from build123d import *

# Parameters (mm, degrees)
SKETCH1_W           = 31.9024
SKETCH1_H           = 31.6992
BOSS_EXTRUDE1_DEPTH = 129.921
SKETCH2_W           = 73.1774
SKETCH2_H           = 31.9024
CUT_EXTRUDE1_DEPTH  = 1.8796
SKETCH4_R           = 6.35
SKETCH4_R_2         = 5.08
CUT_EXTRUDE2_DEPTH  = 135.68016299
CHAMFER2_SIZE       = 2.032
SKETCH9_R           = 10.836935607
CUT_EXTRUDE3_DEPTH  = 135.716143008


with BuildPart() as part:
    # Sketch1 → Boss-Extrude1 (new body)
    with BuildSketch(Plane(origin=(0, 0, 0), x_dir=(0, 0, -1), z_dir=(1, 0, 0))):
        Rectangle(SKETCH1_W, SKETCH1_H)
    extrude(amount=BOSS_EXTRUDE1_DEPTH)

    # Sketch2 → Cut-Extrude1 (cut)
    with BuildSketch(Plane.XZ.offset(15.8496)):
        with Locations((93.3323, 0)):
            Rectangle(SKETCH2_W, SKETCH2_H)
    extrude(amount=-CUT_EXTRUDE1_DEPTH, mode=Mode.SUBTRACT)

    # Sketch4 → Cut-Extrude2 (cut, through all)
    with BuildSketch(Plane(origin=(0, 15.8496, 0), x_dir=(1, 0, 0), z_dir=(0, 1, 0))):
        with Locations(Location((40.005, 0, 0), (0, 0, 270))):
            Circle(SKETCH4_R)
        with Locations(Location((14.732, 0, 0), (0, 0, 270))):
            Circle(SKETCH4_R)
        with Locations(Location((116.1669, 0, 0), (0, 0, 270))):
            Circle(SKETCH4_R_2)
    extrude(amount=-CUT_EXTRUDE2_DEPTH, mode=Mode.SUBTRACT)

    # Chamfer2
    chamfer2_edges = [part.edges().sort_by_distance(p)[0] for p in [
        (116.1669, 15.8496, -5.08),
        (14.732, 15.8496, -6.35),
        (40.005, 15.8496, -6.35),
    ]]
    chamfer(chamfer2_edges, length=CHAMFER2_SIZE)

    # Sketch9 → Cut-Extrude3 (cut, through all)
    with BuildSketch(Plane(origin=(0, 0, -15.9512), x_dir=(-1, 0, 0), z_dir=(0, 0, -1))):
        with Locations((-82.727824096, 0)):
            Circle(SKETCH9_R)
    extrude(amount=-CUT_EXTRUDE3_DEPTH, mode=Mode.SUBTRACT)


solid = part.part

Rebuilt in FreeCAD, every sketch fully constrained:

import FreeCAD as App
import Part
import Sketcher

V = App.Vector
Q = App.Units.Quantity


def edges_at(feature, points):
    """Names of the edges that pass closest to the given points."""
    edges = feature.Shape.Edges
    near = lambda p: min(range(len(edges)), key=lambda i: edges[i].distToShape(Part.Vertex(*p))[0])
    return sorted({f"Edge{near(p) + 1}" for p in points})

doc = App.newDocument("Part")
body = doc.addObject("PartDesign::Body", "Body")

# Sketch on YZ plane
sketch1 = body.newObject("Sketcher::SketchObject", "Sketch")
sketch1.AttachmentSupport = (doc.getObject("YZ_Plane"), [""])
sketch1.MapMode = "FlatFace"
sketch1.addGeometry([
    Part.LineSegment(V(16, 16, 0), V(-16, 16, 0)),
    Part.LineSegment(V(-16, 16, 0), V(-16, -16, 0)),
    Part.LineSegment(V(-16, -16, 0), V(16, -16, 0)),
    Part.LineSegment(V(16, -16, 0), V(16, 16, 0)),
], False)
sketch1.addConstraint([
    Sketcher.Constraint("Coincident", 0, 2, 1, 1),
    Sketcher.Constraint("Coincident", 1, 2, 2, 1),
    Sketcher.Constraint("Coincident", 2, 2, 3, 1),
    Sketcher.Constraint("Coincident", 3, 2, 0, 1),
    Sketcher.Constraint("Horizontal", 0),
    Sketcher.Constraint("Vertical", 1),
    Sketcher.Constraint("Horizontal", 2),
    Sketcher.Constraint("Vertical", 3),
    Sketcher.Constraint("Symmetric", 0, 2, 2, 2, -1, 1),
    Sketcher.Constraint("DistanceX", 0, 2, 0, 1, Q("1.248 in")),
    Sketcher.Constraint("DistanceY", 1, 2, 1, 1, Q("1.256 in")),
])
pad1 = body.newObject("PartDesign::Pad", "Pad")
pad1.Profile = sketch1
pad1.Length = Q("5.115 in")

# Sketch on XZ plane
sketch2 = body.newObject("Sketcher::SketchObject", "Sketch001")
sketch2.AttachmentSupport = (doc.getObject("XZ_Plane"), [""])
sketch2.MapMode = "FlatFace"
sketch2.AttachmentOffset = App.Placement(V(0, 0, 0.624 * 25.4), App.Rotation())
sketch2.addGeometry([
    Part.LineSegment(V(57, 16, 0), V(57, -16, 0)),
    Part.LineSegment(V(57, -16, 0), V(130, -16, 0)),
    Part.LineSegment(V(130, -16, 0), V(130, 16, 0)),
    Part.LineSegment(V(130, 16, 0), V(57, 16, 0)),
], False)
sketch2.addConstraint([
    Sketcher.Constraint("Coincident", 0, 2, 1, 1),
    Sketcher.Constraint("Coincident", 1, 2, 2, 1),
    Sketcher.Constraint("Coincident", 2, 2, 3, 1),
    Sketcher.Constraint("Coincident", 3, 2, 0, 1),
    Sketcher.Constraint("Vertical", 0),
    Sketcher.Constraint("Horizontal", 1),
    Sketcher.Constraint("Vertical", 2),
    Sketcher.Constraint("Horizontal", 3),
    Sketcher.Constraint("DistanceX", 1, 1, 1, 2, Q("2.881 in")),
    Sketcher.Constraint("DistanceY", 0, 2, 0, 1, Q("1.256 in")),
    Sketcher.Constraint("DistanceX", -1, 1, 0, 2, Q("2.234 in")),
    Sketcher.Constraint("DistanceY", 0, 2, -1, 1, Q("0.628 in")),
])
pocket1 = body.newObject("PartDesign::Pocket", "Pocket")
pocket1.Profile = sketch2
pocket1.Length = Q("0.074 in")

# Sketch on XZ plane
sketch3 = body.newObject("Sketcher::SketchObject", "Sketch002")
sketch3.AttachmentSupport = (doc.getObject("XZ_Plane"), [""])
sketch3.MapMode = "FlatFace"
sketch3.AttachmentOffset = App.Placement(V(0, 0, -0.624 * 25.4), App.Rotation())
sketch3.addGeometry([
    Part.Circle(V(40, 0, 0), V(0, 0, 1), 6),
    Part.Circle(V(15, 0, 0), V(0, 0, 1), 6),
    Part.Circle(V(116, 0, 0), V(0, 0, 1), 5),
], False)
sketch3.addConstraint([
    Sketcher.Constraint("Equal", 0, 1),
    Sketcher.Constraint("PointOnObject", 0, 3, -1),
    Sketcher.Constraint("PointOnObject", 1, 3, -1),
    Sketcher.Constraint("PointOnObject", 2, 3, -1),
    Sketcher.Constraint("Diameter", 0, Q("0.5 in")),
    Sketcher.Constraint("Diameter", 2, Q("0.4 in")),
    Sketcher.Constraint("DistanceX", -1, 1, 1, 3, Q("0.58 in")),
    Sketcher.Constraint("DistanceX", -1, 1, 0, 3, Q("1.575 in")),
    Sketcher.Constraint("DistanceX", -1, 1, 2, 3, Q("4.5735 in")),
])
pocket2 = body.newObject("PartDesign::Pocket", "Pocket001")
pocket2.Profile = sketch3
pocket2.Type = "ThroughAll"
pocket2.Reversed = True
doc.recompute()

chamfer = body.newObject("PartDesign::Chamfer", "Chamfer")
chamfer.Base = (pocket2, edges_at(pocket2, [(116.167, 15.85, -5.08), (14.732, 15.85, -6.35), (40.005, 15.85, -6.35)]))
chamfer.Size = Q("0.08 in")

# Sketch on XY plane
sketch4 = body.newObject("Sketcher::SketchObject", "Sketch003")
sketch4.AttachmentSupport = (doc.getObject("XY_Plane"), [""])
sketch4.MapMode = "FlatFace"
sketch4.AttachmentOffset = App.Placement(V(0, 0, -0.628 * 25.4), App.Rotation())
sketch4.addGeometry(Part.Circle(V(83, 0, 0), V(0, 0, 1), 11), False)
sketch4.addConstraint([
    Sketcher.Constraint("PointOnObject", 0, 3, -1),
    Sketcher.Constraint("Diameter", 0, Q("21.673871 mm")),
    Sketcher.Constraint("DistanceX", -1, 1, 0, 3, Q("82.727824 mm")),
])
pocket3 = body.newObject("PartDesign::Pocket", "Pocket002")
pocket3.Profile = sketch4
pocket3.Type = "ThroughAll"
pocket3.Reversed = True

doc.recompute()
